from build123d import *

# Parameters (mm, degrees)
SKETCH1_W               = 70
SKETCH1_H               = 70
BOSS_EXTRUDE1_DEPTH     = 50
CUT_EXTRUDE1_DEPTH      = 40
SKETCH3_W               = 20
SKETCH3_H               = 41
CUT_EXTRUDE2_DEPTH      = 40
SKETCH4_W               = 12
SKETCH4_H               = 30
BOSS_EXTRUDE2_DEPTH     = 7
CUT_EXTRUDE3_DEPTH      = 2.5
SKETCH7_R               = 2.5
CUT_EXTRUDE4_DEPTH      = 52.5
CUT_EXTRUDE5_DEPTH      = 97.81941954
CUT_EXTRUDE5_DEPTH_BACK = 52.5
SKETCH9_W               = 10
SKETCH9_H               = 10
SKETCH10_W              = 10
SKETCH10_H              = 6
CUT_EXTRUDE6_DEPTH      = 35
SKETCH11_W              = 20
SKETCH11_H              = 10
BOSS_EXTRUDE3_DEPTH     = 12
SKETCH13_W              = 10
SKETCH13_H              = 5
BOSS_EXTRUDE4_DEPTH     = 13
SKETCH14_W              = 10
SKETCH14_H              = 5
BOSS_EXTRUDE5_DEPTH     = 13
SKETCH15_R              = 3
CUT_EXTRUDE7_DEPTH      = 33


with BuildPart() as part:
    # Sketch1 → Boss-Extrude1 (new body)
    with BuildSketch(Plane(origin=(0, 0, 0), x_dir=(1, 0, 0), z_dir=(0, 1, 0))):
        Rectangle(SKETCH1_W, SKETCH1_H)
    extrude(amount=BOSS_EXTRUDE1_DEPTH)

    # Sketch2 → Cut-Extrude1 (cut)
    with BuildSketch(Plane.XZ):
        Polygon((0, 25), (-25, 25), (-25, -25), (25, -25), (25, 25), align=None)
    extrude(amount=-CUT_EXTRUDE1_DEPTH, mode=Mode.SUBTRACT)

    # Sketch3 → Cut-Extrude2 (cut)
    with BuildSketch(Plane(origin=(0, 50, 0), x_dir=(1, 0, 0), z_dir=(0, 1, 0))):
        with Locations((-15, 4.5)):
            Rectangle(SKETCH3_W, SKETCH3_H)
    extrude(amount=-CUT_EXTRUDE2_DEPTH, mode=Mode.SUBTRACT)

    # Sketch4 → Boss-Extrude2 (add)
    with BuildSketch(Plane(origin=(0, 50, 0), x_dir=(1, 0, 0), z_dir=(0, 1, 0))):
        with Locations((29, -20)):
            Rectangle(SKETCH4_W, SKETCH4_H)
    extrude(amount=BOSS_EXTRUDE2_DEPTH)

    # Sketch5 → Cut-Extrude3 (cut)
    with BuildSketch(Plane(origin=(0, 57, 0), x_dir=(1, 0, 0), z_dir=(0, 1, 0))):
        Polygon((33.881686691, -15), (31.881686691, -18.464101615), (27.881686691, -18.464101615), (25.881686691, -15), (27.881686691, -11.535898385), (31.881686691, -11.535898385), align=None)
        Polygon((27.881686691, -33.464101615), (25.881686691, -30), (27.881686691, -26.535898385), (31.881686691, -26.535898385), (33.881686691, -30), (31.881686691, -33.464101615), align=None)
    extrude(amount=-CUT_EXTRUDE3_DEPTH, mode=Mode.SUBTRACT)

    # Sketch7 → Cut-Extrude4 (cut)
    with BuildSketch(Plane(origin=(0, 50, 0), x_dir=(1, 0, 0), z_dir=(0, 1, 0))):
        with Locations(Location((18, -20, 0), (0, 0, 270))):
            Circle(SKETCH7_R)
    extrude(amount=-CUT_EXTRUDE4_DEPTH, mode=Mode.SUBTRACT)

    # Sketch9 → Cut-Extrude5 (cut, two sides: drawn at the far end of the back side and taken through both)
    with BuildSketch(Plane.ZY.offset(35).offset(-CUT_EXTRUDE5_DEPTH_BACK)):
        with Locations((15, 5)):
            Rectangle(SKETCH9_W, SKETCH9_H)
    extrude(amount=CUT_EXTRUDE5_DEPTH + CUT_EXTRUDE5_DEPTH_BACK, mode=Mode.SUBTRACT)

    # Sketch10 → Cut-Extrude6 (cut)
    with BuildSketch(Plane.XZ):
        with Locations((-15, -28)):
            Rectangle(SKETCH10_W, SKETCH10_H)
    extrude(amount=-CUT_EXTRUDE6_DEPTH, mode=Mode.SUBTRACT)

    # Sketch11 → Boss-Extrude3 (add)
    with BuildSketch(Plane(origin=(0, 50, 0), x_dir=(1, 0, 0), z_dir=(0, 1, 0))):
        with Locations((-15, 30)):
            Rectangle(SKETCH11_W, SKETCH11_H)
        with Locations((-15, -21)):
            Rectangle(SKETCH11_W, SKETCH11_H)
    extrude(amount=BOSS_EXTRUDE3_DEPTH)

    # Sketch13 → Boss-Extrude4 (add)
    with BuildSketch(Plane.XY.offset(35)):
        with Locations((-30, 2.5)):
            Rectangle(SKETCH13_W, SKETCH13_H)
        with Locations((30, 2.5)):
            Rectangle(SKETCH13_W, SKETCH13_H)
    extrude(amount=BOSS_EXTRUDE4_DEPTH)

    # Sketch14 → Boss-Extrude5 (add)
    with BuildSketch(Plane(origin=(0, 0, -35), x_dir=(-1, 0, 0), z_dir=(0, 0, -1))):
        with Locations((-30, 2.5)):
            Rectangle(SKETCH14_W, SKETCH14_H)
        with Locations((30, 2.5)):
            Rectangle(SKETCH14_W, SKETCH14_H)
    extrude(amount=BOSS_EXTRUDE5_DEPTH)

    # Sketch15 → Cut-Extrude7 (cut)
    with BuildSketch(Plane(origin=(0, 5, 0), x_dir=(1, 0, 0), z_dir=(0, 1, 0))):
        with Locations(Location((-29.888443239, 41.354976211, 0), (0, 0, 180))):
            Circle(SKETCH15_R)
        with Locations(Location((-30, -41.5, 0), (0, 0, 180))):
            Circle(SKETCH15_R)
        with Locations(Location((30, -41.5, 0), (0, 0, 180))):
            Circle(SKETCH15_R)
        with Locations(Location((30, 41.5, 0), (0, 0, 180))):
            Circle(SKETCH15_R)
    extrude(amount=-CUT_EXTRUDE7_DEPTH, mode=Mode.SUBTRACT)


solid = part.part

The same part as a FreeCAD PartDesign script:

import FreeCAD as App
import Part
import Sketcher
Q = App.Units.Quantity


def add_polygon(sketch, points):
    """Adds a closed chain of lines whose ends are joined by coincident constraints."""
    first, n = sketch.GeometryCount, len(points)
    for a, b in zip(points, points[1:] + points[:1]):
        sketch.addGeometry(Part.LineSegment(App.Vector(*a, 0), App.Vector(*b, 0)), False)
    for i in range(n):
        sketch.addConstraint(Sketcher.Constraint("Coincident", first + i, 2, first + (i + 1) % n, 1))

doc = App.newDocument("Part")
params = doc.addObject("Spreadsheet::Sheet", "Params")
for row, (alias, value) in enumerate([
    ("sketch1_width", "70 mm"),
    ("pad1_length", "50 mm"),
    ("sketch2_width", "50 mm"),
    ("pocket1_length", "40 mm"),
    ("sketch3_width", "20 mm"),
    ("sketch3_height", "41 mm"),
    ("pocket2_length", "40 mm"),
    ("sketch4_width", "12 mm"),
    ("sketch4_height", "30 mm"),
    ("pad2_length", "7 mm"),
    ("sketch5_width", "4 mm"),
    ("sketch5_length", "4 mm"),
    ("pocket3_length", "2.5 mm"),
    ("sketch6_diameter", "5 mm"),
    ("pocket4_length", "52.5 mm"),
    ("sketch7_width", "10 mm"),
    ("pocket5_length", "97.81942 mm"),
    ("pocket5_length2", "52.5 mm"),
    ("sketch8_width", "10 mm"),
    ("sketch8_height", "6 mm"),
    ("pocket6_length", "35 mm"),
    ("sketch9_width", "20 mm"),
    ("sketch9_height", "10 mm"),
    ("pad3_length", "12 mm"),
    ("sketch10_width", "10 mm"),
    ("sketch10_height", "5 mm"),
    ("pad4_length", "13 mm"),
    ("sketch11_width", "10 mm"),
    ("sketch11_height", "5 mm"),
    ("pad5_length", "13 mm"),
    ("sketch12_diameter", "6 mm"),
    ("pocket7_length", "33 mm"),
], start=1):
    params.set(f"A{row}", alias)
    params.set(f"B{row}", "=" + value)
    params.setAlias(f"B{row}", alias)

body = doc.addObject("PartDesign::Body", "Body")

# Sketch on XZ plane
sketch1 = body.newObject("Sketcher::SketchObject", "Sketch")
sketch1.AttachmentSupport = (doc.getObject("XZ_Plane"), [""])
sketch1.MapMode = "FlatFace"
add_polygon(sketch1, [(-35, -35), (-35, 35), (35, 35), (35, -35)])  # lines 0-3
sketch1.addConstraint([
    Sketcher.Constraint("Vertical", 0),
    Sketcher.Constraint("Horizontal", 1),
    Sketcher.Constraint("Vertical", 2),
    Sketcher.Constraint("Horizontal", 3),
    Sketcher.Constraint("Symmetric", 0, 2, 2, 2, -1, 1),
    Sketcher.Constraint("Equal", 3, 0),
    Sketcher.Constraint("DistanceX", 1, 1, 1, 2, Q("70 mm")),
])
sketch1.setExpression("Constraints[10]", "Params.sketch1_width")
pad1 = body.newObject("PartDesign::Pad", "Pad")
pad1.Profile = sketch1
pad1.setExpression("Length", "Params.pad1_length")
pad1.Reversed = True

# Sketch on XZ plane
sketch2 = body.newObject("Sketcher::SketchObject", "Sketch001")
sketch2.AttachmentSupport = (doc.getObject("XZ_Plane"), [""])
sketch2.MapMode = "FlatFace"
add_polygon(sketch2, [(-25, 25), (-25, -25), (25, -25), (25, 25)])  # lines 0-3
sketch2.addConstraint([
    Sketcher.Constraint("Vertical", 0),
    Sketcher.Constraint("Horizontal", 1),
    Sketcher.Constraint("Vertical", 2),
    Sketcher.Constraint("Horizontal", 3),
    Sketcher.Constraint("Symmetric", 0, 2, 2, 2, -1, 1),
    Sketcher.Constraint("Equal", 3, 0),
    Sketcher.Constraint("DistanceX", 1, 1, 1, 2, Q("50 mm")),
])
sketch2.setExpression("Constraints[10]", "Params.sketch2_width")
pocket1 = body.newObject("PartDesign::Pocket", "Pocket")
pocket1.Profile = sketch2
pocket1.setExpression("Length", "Params.pocket1_length")

# Sketch on XZ plane
sketch3 = body.newObject("Sketcher::SketchObject", "Sketch002")
sketch3.AttachmentSupport = (doc.getObject("XZ_Plane"), [""])
sketch3.MapMode = "FlatFace"
sketch3.AttachmentOffset = App.Placement(App.Vector(0, 0, -50), App.Rotation())
add_polygon(sketch3, [(-25, -25), (-25, 16), (-5, 16), (-5, -25)])  # lines 0-3
sketch3.addConstraint([
    Sketcher.Constraint("Vertical", 0),
    Sketcher.Constraint("Horizontal", 1),
    Sketcher.Constraint("Vertical", 2),
    Sketcher.Constraint("Horizontal", 3),
    Sketcher.Constraint("DistanceX", 1, 1, 1, 2, Q("20 mm")),
    Sketcher.Constraint("DistanceY", 0, 1, 0, 2, Q("41 mm")),
    Sketcher.Constraint("DistanceX", 0, 2, -1, 1, Q("25 mm")),
    Sketcher.Constraint("DistanceY", -1, 1, 0, 2, Q("16 mm")),
])
sketch3.setExpression("Constraints[8]", "Params.sketch3_width")
sketch3.setExpression("Constraints[9]", "Params.sketch3_height")
pocket2 = body.newObject("PartDesign::Pocket", "Pocket001")
pocket2.Profile = sketch3
pocket2.setExpression("Length", "Params.pocket2_length")
pocket2.Reversed = True

# Sketch on XZ plane
sketch4 = body.newObject("Sketcher::SketchObject", "Sketch003")
sketch4.AttachmentSupport = (doc.getObject("XZ_Plane"), [""])
sketch4.MapMode = "FlatFace"
sketch4.AttachmentOffset = App.Placement(App.Vector(0, 0, -50), App.Rotation())
add_polygon(sketch4, [(23, 5), (23, 35), (35, 35), (35, 5)])  # lines 0-3
sketch4.addConstraint([
    Sketcher.Constraint("Vertical", 0),
    Sketcher.Constraint("Horizontal", 1),
    Sketcher.Constraint("Vertical", 2),
    Sketcher.Constraint("Horizontal", 3),
    Sketcher.Constraint("DistanceX", 1, 1, 1, 2, Q("12 mm")),
    Sketcher.Constraint("DistanceY", 0, 1, 0, 2, Q("30 mm")),
    Sketcher.Constraint("DistanceX", -1, 1, 0, 2, Q("23 mm")),
    Sketcher.Constraint("DistanceY", -1, 1, 0, 2, Q("35 mm")),
])
sketch4.setExpression("Constraints[8]", "Params.sketch4_width")
sketch4.setExpression("Constraints[9]", "Params.sketch4_height")
pad2 = body.newObject("PartDesign::Pad", "Pad001")
pad2.Profile = sketch4
pad2.setExpression("Length", "Params.pad2_length")
pad2.Reversed = True

# Sketch on XZ plane
sketch5 = body.newObject("Sketcher::SketchObject", "Sketch004")
sketch5.AttachmentSupport = (doc.getObject("XZ_Plane"), [""])
sketch5.MapMode = "FlatFace"
sketch5.AttachmentOffset = App.Placement(App.Vector(0, 0, -57), App.Rotation())
add_polygon(sketch5, [(31.9, 18.5), (33.9, 15), (31.9, 11.5), (27.9, 11.5), (25.9, 15), (27.9, 18.5)])  # lines 0-5
add_polygon(sketch5, [(25.9, 30), (27.9, 33.5), (31.9, 33.5), (33.9, 30), (31.9, 26.5), (27.9, 26.5)])  # lines 6-11
sketch5.addConstraint([
    Sketcher.Constraint("Horizontal", 2),
    Sketcher.Constraint("Horizontal", 5),
    Sketcher.Constraint("Horizontal", 7),
    Sketcher.Constraint("Horizontal", 10),
    Sketcher.Constraint("Parallel", 0, 3),
    Sketcher.Constraint("Parallel", 1, 4),
    Sketcher.Constraint("Parallel", 4, 6),
    Sketcher.Constraint("Parallel", 3, 8),
    Sketcher.Constraint("Parallel", 6, 9),
    Sketcher.Constraint("Parallel", 8, 11),
    Sketcher.Constraint("Horizontal", 0, 2, 3, 2),
    Sketcher.Constraint("Horizontal", 8, 2, 11, 2),
    Sketcher.Constraint("Vertical", 2, 2, 4, 2),
    Sketcher.Constraint("Vertical", 1, 2, 5, 2),
    Sketcher.Constraint("Vertical", 4, 2, 6, 2),
    Sketcher.Constraint("Vertical", 5, 2, 7, 2),
    Sketcher.Constraint("Vertical", 0, 2, 8, 2),
    Sketcher.Constraint("Vertical", 7, 2, 9, 2),
    Sketcher.Constraint("DistanceX", 2, 2, 2, 1, Q("4 mm")),
    Sketcher.Constraint("Angle", 0, Q("-60 deg")),
    Sketcher.Constraint("Distance", 0, Q("4 mm")),
    Sketcher.Constraint("DistanceY", -1, 1, 0, 2, Q("15 mm")),
    Sketcher.Constraint("DistanceY", -1, 1, 8, 2, Q("30 mm")),
    Sketcher.Constraint("DistanceX", -1, 1, 0, 2, Q("33.881687 mm")),
])
sketch5.setExpression("Constraints[30]", "Params.sketch5_width")
sketch5.setExpression("Constraints[32]", "Params.sketch5_length")
pocket3 = body.newObject("PartDesign::Pocket", "Pocket002")
pocket3.Profile = sketch5
pocket3.setExpression("Length", "Params.pocket3_length")
pocket3.Reversed = True

# Sketch on XZ plane
sketch6 = body.newObject("Sketcher::SketchObject", "Sketch005")
sketch6.AttachmentSupport = (doc.getObject("XZ_Plane"), [""])
sketch6.MapMode = "FlatFace"
sketch6.AttachmentOffset = App.Placement(App.Vector(0, 0, -50), App.Rotation())
sketch6.addGeometry(Part.Circle(App.Vector(18, 20, 0), App.Vector(0, 0, 1), 2.5), False)
sketch6.addConstraint([
    Sketcher.Constraint("Diameter", 0, Q("5 mm")),
    Sketcher.Constraint("DistanceX", -1, 1, 0, 3, Q("18 mm")),
    Sketcher.Constraint("DistanceY", -1, 1, 0, 3, Q("20 mm")),
])
sketch6.setExpression("Constraints[0]", "Params.sketch6_diameter")
pocket4 = body.newObject("PartDesign::Pocket", "Pocket003")
pocket4.Profile = sketch6
pocket4.setExpression("Length", "Params.pocket4_length")
pocket4.Reversed = True

# Sketch on YZ plane
sketch7 = body.newObject("Sketcher::SketchObject", "Sketch006")
sketch7.AttachmentSupport = (doc.getObject("YZ_Plane"), [""])
sketch7.MapMode = "FlatFace"
sketch7.AttachmentOffset = App.Placement(App.Vector(0, 0, -35), App.Rotation())
add_polygon(sketch7, [(10, 10), (0, 10), (0, 20), (10, 20)])  # lines 0-3
sketch7.addConstraint([
    Sketcher.Constraint("Horizontal", 0),
    Sketcher.Constraint("Vertical", 1),
    Sketcher.Constraint("Horizontal", 2),
    Sketcher.Constraint("Vertical", 3),
    Sketcher.Constraint("PointOnObject", 0, 2, -2),
    Sketcher.Constraint("Equal", 2, 1),
    Sketcher.Constraint("DistanceX", 0, 2, 0, 1, Q("10 mm")),
    Sketcher.Constraint("DistanceY", -1, 1, 0, 2, Q("10 mm")),
])
sketch7.setExpression("Constraints[10]", "Params.sketch7_width")
pocket5 = body.newObject("PartDesign::Pocket", "Pocket004")
pocket5.Profile = sketch7
pocket5.Type = "TwoLengths"
pocket5.setExpression("Length", "Params.pocket5_length")
pocket5.setExpression("Length2", "Params.pocket5_length2")

# Sketch on XZ plane
sketch8 = body.newObject("Sketcher::SketchObject", "Sketch007")
sketch8.AttachmentSupport = (doc.getObject("XZ_Plane"), [""])
sketch8.MapMode = "FlatFace"
add_polygon(sketch8, [(-20, -25), (-20, -31), (-10, -31), (-10, -25)])  # lines 0-3
sketch8.addConstraint([
    Sketcher.Constraint("Vertical", 0),
    Sketcher.Constraint("Horizontal", 1),
    Sketcher.Constraint("Vertical", 2),
    Sketcher.Constraint("Horizontal", 3),
    Sketcher.Constraint("DistanceX", 1, 1, 1, 2, Q("10 mm")),
    Sketcher.Constraint("DistanceY", 0, 2, 0, 1, Q("6 mm")),
    Sketcher.Constraint("DistanceX", 0, 2, -1, 1, Q("20 mm")),
    Sketcher.Constraint("DistanceY", 0, 2, -1, 1, Q("31 mm")),
])
sketch8.setExpression("Constraints[8]", "Params.sketch8_width")
sketch8.setExpression("Constraints[9]", "Params.sketch8_height")
pocket6 = body.newObject("PartDesign::Pocket", "Pocket005")
pocket6.Profile = sketch8
pocket6.setExpression("Length", "Params.pocket6_length")

# Sketch on XZ plane
sketch9 = body.newObject("Sketcher::SketchObject", "Sketch008")
sketch9.AttachmentSupport = (doc.getObject("XZ_Plane"), [""])
sketch9.MapMode = "FlatFace"
sketch9.AttachmentOffset = App.Placement(App.Vector(0, 0, -50), App.Rotation())
add_polygon(sketch9, [(-25, -35), (-25, -25), (-5, -25), (-5, -35)])  # lines 0-3
add_polygon(sketch9, [(-25, 16), (-25, 26), (-5, 26), (-5, 16)])  # lines 4-7
sketch9.addConstraint([
    Sketcher.Constraint("Vertical", 0),
    Sketcher.Constraint("Horizontal", 1),
    Sketcher.Constraint("Vertical", 2),
    Sketcher.Constraint("Horizontal", 3),
    Sketcher.Constraint("Vertical", 4),
    Sketcher.Constraint("Horizontal", 5),
    Sketcher.Constraint("Vertical", 6),
    Sketcher.Constraint("Horizontal", 7),
    Sketcher.Constraint("Vertical", 3, 2, 4, 2),
    Sketcher.Constraint("Vertical", 2, 2, 5, 2),
    Sketcher.Constraint("Equal", 2, 4),
    Sketcher.Constraint("DistanceX", 1, 1, 1, 2, Q("20 mm")),
    Sketcher.Constraint("DistanceY", 0, 1, 0, 2, Q("10 mm")),
    Sketcher.Constraint("DistanceX", 0, 2, -1, 1, Q("25 mm")),
    Sketcher.Constraint("DistanceY", 0, 2, -1, 1, Q("25 mm")),
    Sketcher.Constraint("DistanceY", -1, 1, 4, 2, Q("26 mm")),
])
sketch9.setExpression("Constraints[19]", "Params.sketch9_width")
sketch9.setExpression("Constraints[20]", "Params.sketch9_height")
pad3 = body.newObject("PartDesign::Pad", "Pad002")
pad3.Profile = sketch9
pad3.setExpression("Length", "Params.pad3_length")
pad3.Reversed = True

# Sketch on XY plane
sketch10 = body.newObject("Sketcher::SketchObject", "Sketch009")
sketch10.AttachmentSupport = (doc.getObject("XY_Plane"), [""])
sketch10.MapMode = "FlatFace"
sketch10.AttachmentOffset = App.Placement(App.Vector(0, 0, 35), App.Rotation())
add_polygon(sketch10, [(-35, 5), (-35, 0), (-25, 0), (-25, 5)])  # lines 0-3
add_polygon(sketch10, [(25, 5), (25, 0), (35, 0), (35, 5)])  # lines 4-7
sketch10.addConstraint([
    Sketcher.Constraint("Vertical", 0),
    Sketcher.Constraint("Horizontal", 1),
    Sketcher.Constraint("Vertical", 2),
    Sketcher.Constraint("Horizontal", 3),
    Sketcher.Constraint("Vertical", 4),
    Sketcher.Constraint("Horizontal", 5),
    Sketcher.Constraint("Vertical", 6),
    Sketcher.Constraint("Horizontal", 7),
    Sketcher.Constraint("Symmetric", 1, 2, 4, 2, -1, 1),
    Sketcher.Constraint("Symmetric", 0, 2, 5, 2, -2),
    Sketcher.Constraint("Horizontal", 3, 2, 6, 2),
    Sketcher.Constraint("DistanceX", 1, 1, 1, 2, Q("10 mm")),
    Sketcher.Constraint("DistanceY", 0, 2, 0, 1, Q("5 mm")),
    Sketcher.Constraint("DistanceX", 0, 2, -1, 1, Q("35 mm")),
])
sketch10.setExpression("Constraints[19]", "Params.sketch10_width")
sketch10.setExpression("Constraints[20]", "Params.sketch10_height")
pad4 = body.newObject("PartDesign::Pad", "Pad003")
pad4.Profile = sketch10
pad4.setExpression("Length", "Params.pad4_length")

# Sketch on XY plane
sketch11 = body.newObject("Sketcher::SketchObject", "Sketch010")
sketch11.AttachmentSupport = (doc.getObject("XY_Plane"), [""])
sketch11.MapMode = "FlatFace"
sketch11.AttachmentOffset = App.Placement(App.Vector(0, 0, -35), App.Rotation())
add_polygon(sketch11, [(35, 5), (35, 0), (25, 0), (25, 5)])  # lines 0-3
add_polygon(sketch11, [(-25, 5), (-25, 0), (-35, 0), (-35, 5)])  # lines 4-7
sketch11.addConstraint([
    Sketcher.Constraint("Vertical", 0),
    Sketcher.Constraint("Horizontal", 1),
    Sketcher.Constraint("Vertical", 2),
    Sketcher.Constraint("Horizontal", 3),
    Sketcher.Constraint("Vertical", 4),
    Sketcher.Constraint("Horizontal", 5),
    Sketcher.Constraint("Vertical", 6),
    Sketcher.Constraint("Horizontal", 7),
    Sketcher.Constraint("Symmetric", 1, 2, 4, 2, -1, 1),
    Sketcher.Constraint("Symmetric", 0, 2, 5, 2, -2),
    Sketcher.Constraint("Horizontal", 3, 2, 6, 2),
    Sketcher.Constraint("DistanceX", 1, 2, 1, 1, Q("10 mm")),
    Sketcher.Constraint("DistanceY", 0, 2, 0, 1, Q("5 mm")),
    Sketcher.Constraint("DistanceX", -1, 1, 0, 2, Q("35 mm")),
])
sketch11.setExpression("Constraints[19]", "Params.sketch11_width")
sketch11.setExpression("Constraints[20]", "Params.sketch11_height")
pad5 = body.newObject("PartDesign::Pad", "Pad004")
pad5.Profile = sketch11
pad5.setExpression("Length", "Params.pad5_length")
pad5.Reversed = True

# Sketch on XZ plane
sketch12 = body.newObject("Sketcher::SketchObject", "Sketch011")
sketch12.AttachmentSupport = (doc.getObject("XZ_Plane"), [""])
sketch12.MapMode = "FlatFace"
sketch12.AttachmentOffset = App.Placement(App.Vector(0, 0, -5), App.Rotation())
sketch12.addGeometry([
    Part.Circle(App.Vector(-29.9, -41.4, 0), App.Vector(0, 0, 1), 3),
    Part.Circle(App.Vector(-30, 41.5, 0), App.Vector(0, 0, 1), 3),
    Part.Circle(App.Vector(30, 41.5, 0), App.Vector(0, 0, 1), 3),
    Part.Circle(App.Vector(30, -41.5, 0), App.Vector(0, 0, 1), 3),
], False)
sketch12.addConstraint([
    Sketcher.Constraint("Equal", 0, 1),
    Sketcher.Constraint("Equal", 1, 2),
    Sketcher.Constraint("Equal", 2, 3),
    Sketcher.Constraint("Symmetric", 1, 3, 3, 3, -1, 1),
    Sketcher.Constraint("Symmetric", 1, 3, 2, 3, -2),
    Sketcher.Constraint("Diameter", 0, Q("6 mm")),
    Sketcher.Constraint("DistanceX", 1, 3, -1, 1, Q("30 mm")),
    Sketcher.Constraint("DistanceY", 3, 3, 2, 3, Q("83 mm")),
    Sketcher.Constraint("DistanceX", 0, 3, -1, 1, Q("29.888443 mm")),
    Sketcher.Constraint("DistanceY", 0, 3, -1, 1, Q("41.354976 mm")),
])
sketch12.setExpression("Constraints[5]", "Params.sketch12_diameter")
pocket7 = body.newObject("PartDesign::Pocket", "Pocket006")
pocket7.Profile = sketch12
pocket7.setExpression("Length", "Params.pocket7_length")
pocket7.Reversed = True

doc.recompute()
